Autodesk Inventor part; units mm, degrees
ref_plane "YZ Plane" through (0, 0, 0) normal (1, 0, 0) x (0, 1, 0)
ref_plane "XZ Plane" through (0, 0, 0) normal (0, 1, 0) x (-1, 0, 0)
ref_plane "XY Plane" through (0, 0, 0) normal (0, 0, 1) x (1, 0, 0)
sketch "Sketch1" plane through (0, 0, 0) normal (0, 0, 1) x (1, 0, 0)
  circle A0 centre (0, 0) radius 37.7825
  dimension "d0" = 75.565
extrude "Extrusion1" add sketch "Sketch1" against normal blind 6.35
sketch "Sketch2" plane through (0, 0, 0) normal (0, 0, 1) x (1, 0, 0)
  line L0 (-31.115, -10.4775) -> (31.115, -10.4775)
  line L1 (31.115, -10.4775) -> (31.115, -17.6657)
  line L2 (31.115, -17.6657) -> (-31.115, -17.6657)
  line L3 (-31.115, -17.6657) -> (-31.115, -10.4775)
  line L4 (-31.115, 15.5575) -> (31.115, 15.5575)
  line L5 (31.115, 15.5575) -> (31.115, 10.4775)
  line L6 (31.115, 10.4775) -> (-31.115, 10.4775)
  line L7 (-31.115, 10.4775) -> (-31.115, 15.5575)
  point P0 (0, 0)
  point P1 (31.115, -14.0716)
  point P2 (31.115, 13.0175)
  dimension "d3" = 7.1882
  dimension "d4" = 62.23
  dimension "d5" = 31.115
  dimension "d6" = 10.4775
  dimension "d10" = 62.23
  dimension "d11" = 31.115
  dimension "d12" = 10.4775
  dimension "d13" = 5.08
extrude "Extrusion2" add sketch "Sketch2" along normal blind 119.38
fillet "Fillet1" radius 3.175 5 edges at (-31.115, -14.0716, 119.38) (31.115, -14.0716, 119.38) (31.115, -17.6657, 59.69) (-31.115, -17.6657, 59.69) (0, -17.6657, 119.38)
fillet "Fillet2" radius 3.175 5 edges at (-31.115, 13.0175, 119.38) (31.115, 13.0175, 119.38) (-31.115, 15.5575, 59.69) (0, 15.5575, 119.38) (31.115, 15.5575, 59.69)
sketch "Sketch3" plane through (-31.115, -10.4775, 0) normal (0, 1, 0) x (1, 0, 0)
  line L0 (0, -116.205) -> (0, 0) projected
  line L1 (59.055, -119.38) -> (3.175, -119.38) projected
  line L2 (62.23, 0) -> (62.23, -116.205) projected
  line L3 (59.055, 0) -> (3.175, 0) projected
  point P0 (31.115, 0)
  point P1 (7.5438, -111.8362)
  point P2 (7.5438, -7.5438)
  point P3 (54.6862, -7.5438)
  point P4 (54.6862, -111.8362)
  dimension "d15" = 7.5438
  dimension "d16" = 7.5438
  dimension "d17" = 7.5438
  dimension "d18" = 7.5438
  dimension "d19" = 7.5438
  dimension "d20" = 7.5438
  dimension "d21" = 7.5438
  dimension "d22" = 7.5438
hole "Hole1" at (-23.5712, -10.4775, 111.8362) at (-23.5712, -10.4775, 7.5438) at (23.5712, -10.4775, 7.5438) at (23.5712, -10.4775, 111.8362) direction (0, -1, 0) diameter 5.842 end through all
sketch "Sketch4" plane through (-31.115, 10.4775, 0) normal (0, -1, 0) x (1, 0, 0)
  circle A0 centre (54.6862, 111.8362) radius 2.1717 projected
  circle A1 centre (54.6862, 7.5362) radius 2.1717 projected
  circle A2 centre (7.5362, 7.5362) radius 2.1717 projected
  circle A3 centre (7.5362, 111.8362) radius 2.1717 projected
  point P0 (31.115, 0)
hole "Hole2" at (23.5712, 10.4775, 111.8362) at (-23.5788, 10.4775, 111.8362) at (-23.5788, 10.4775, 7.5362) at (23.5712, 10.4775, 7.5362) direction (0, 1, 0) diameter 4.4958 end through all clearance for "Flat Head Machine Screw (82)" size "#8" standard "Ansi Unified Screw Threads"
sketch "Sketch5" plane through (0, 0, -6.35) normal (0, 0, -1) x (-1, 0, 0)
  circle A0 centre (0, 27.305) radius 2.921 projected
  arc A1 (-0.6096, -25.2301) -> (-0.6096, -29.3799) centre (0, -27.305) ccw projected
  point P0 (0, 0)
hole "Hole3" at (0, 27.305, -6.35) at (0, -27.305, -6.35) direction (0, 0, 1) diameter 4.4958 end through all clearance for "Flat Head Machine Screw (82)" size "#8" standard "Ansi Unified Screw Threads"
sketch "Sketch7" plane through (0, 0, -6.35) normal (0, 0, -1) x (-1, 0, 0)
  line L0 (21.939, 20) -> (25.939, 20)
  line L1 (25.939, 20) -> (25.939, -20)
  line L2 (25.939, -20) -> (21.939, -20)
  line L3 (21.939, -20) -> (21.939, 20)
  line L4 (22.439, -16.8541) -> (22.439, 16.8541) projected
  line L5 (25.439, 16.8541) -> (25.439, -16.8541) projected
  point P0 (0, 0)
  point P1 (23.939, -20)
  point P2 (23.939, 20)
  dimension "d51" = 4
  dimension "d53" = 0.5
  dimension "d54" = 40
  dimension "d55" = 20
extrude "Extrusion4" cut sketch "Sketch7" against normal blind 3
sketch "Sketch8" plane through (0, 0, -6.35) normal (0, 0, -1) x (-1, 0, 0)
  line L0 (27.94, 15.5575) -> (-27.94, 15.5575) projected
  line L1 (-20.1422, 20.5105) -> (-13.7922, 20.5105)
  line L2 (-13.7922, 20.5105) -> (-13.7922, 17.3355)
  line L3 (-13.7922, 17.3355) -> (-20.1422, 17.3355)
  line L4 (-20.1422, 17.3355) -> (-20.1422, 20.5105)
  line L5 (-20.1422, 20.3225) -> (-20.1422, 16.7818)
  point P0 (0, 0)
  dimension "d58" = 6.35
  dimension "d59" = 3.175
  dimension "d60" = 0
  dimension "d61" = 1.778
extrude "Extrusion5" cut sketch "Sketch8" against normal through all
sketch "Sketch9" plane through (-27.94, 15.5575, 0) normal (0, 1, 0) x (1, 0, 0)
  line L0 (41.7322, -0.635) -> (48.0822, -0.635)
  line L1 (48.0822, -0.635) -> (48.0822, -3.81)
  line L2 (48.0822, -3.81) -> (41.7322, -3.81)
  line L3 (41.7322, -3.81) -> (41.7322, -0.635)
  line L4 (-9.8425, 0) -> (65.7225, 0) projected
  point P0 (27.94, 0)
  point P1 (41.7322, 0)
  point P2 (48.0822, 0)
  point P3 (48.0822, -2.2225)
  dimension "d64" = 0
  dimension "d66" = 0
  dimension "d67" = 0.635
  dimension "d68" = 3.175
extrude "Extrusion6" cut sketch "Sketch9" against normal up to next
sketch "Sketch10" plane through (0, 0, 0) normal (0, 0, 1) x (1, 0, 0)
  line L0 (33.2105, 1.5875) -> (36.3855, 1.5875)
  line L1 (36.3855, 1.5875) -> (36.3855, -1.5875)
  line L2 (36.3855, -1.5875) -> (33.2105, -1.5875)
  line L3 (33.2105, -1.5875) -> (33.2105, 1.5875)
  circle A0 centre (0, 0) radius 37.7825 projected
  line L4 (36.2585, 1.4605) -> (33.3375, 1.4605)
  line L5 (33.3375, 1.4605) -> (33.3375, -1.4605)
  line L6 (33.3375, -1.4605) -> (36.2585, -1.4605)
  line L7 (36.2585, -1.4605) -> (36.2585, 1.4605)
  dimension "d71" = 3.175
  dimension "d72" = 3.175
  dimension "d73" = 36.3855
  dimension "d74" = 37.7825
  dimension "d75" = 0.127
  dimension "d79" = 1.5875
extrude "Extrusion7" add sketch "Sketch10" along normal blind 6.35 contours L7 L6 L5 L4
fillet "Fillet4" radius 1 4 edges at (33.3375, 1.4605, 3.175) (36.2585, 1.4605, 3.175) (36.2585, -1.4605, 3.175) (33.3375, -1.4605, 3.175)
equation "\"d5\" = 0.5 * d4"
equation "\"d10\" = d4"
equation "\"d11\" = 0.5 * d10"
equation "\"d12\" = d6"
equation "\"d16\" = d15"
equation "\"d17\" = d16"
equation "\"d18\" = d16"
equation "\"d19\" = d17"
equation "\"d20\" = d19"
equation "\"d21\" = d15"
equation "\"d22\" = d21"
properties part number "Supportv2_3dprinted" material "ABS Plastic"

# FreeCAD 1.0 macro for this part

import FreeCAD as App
import Part
import Sketcher
from FreeCAD import Vector
Q = App.Units.Quantity


def edges_at(feature, points):
    """Names of the edges that pass closest to the given points."""
    edges = feature.Shape.Edges
    near = lambda p: min(range(len(edges)), key=lambda i: edges[i].distToShape(Part.Vertex(*p))[0])
    return sorted({f"Edge{near(p) + 1}" for p in points})


def add_polygon(sketch, points):
    """Adds a closed chain of lines whose ends are joined by coincident constraints."""
    first, n = sketch.GeometryCount, len(points)
    for a, b in zip(points, points[1:] + points[:1]):
        sketch.addGeometry(Part.LineSegment(App.Vector(*a, 0), App.Vector(*b, 0)), False)
    for i in range(n):
        sketch.addConstraint(Sketcher.Constraint("Coincident", first + i, 2, first + (i + 1) % n, 1))

doc = App.newDocument("Part")
params = doc.addObject("Spreadsheet::Sheet", "Params")
for row, (alias, value) in enumerate([
    ("sketch1_diameter", "2.975 in"),
    ("pad1_length", "0.25 in"),
    ("sketch2_height", "0.2 in"),
    ("sketch2_width", "2.45 in"),
    ("sketch2_height2", "0.283 in"),
    ("pad2_length", "4.7 in"),
    ("fillet_radius", "0.125 in"),
    ("fillet2_radius", "0.125 in"),
    ("sketch3_diameter", "0.23 in"),
    ("hole_diameter", "0.23 in"),
    ("sketch4_diameter", "0.177 in"),
    ("hole2_diameter", "0.177 in"),
    ("sketch5_diameter", "0.177 in"),
    ("hole3_diameter", "0.177 in"),
    ("pocket1_length", "0.1181102 in"),
    ("sketch7_width", "0.25 in"),
    ("sketch7_height", "0.125 in"),
    ("sketch8_height", "0.125 in"),
    ("sketch8_width", "0.25 in"),
    ("sketch9_width", "0.115 in"),
    ("pad3_length", "0.25 in"),
    ("fillet3_radius", "1 mm"),
], start=1):
    params.set(f"A{row}", alias)
    params.set(f"B{row}", "=" + value)
    params.setAlias(f"B{row}", alias)

body = doc.addObject("PartDesign::Body", "Body")

# Sketch on XY plane
sketch1 = body.newObject("Sketcher::SketchObject", "Sketch")
sketch1.AttachmentSupport = (doc.getObject("XY_Plane"), [""])
sketch1.MapMode = "FlatFace"
sketch1.addGeometry(Part.Circle(Vector(0, 0, 0), Vector(0, 0, 1), 38), False)
sketch1.addConstraint([
    Sketcher.Constraint("Coincident", 0, 3, -1, 1),
    Sketcher.Constraint("Diameter", 0, Q("2.975 in")),
])
sketch1.setExpression("Constraints[1]", "Params.sketch1_diameter")
pad1 = body.newObject("PartDesign::Pad", "Pad")
pad1.Profile = sketch1
pad1.setExpression("Length", "Params.pad1_length")
pad1.Reversed = True

# Sketch on XY plane
sketch2 = body.newObject("Sketcher::SketchObject", "Sketch001")
sketch2.AttachmentSupport = (doc.getObject("XY_Plane"), [""])
sketch2.MapMode = "FlatFace"
add_polygon(sketch2, [(31, -10), (-31, -10), (-31, -18), (31, -18)])  # lines 0-3
add_polygon(sketch2, [(31, 16), (-31, 16), (-31, 10), (31, 10)])  # lines 4-7
sketch2.addConstraint([
    Sketcher.Constraint("Horizontal", 0),
    Sketcher.Constraint("Vertical", 1),
    Sketcher.Constraint("Horizontal", 2),
    Sketcher.Constraint("Vertical", 3),
    Sketcher.Constraint("Horizontal", 4),
    Sketcher.Constraint("Vertical", 5),
    Sketcher.Constraint("Horizontal", 6),
    Sketcher.Constraint("Vertical", 7),
    Sketcher.Constraint("Symmetric", 3, 2, 5, 2, -1, 1),
    Sketcher.Constraint("Vertical", 1, 2, 4, 2),
    Sketcher.Constraint("Vertical", 3, 2, 6, 2),
    Sketcher.Constraint("DistanceY", 5, 2, 5, 1, Q("0.2 in")),
    Sketcher.Constraint("DistanceX", 0, 2, 0, 1, Q("2.45 in")),
    Sketcher.Constraint("DistanceY", 1, 2, 1, 1, Q("0.283 in")),
    Sketcher.Constraint("DistanceY", 0, 2, -1, 1, Q("0.4125 in")),
])
sketch2.setExpression("Constraints[19]", "Params.sketch2_height")
sketch2.setExpression("Constraints[20]", "Params.sketch2_width")
sketch2.setExpression("Constraints[21]", "Params.sketch2_height2")
pad2 = body.newObject("PartDesign::Pad", "Pad001")
pad2.Profile = sketch2
pad2.setExpression("Length", "Params.pad2_length")
doc.recompute()

fillet = body.newObject("PartDesign::Fillet", "Fillet")
fillet.Base = (pad2, edges_at(pad2, [
    (-31.115, -14.072, 119.38),
    (31.115, -14.072, 119.38),
    (31.115, -17.666, 59.69),
    (-31.115, -17.666, 59.69),
    (0, -17.666, 119.38),
]))
fillet.setExpression("Radius", "Params.fillet_radius")
doc.recompute()

fillet2 = body.newObject("PartDesign::Fillet", "Fillet001")
fillet2.Base = (fillet, edges_at(fillet, [
    (-31.115, 13.018, 119.38),
    (31.115, 13.018, 119.38),
    (-31.115, 15.557, 59.69),
    (0, 15.557, 119.38),
    (31.115, 15.557, 59.69),
]))
fillet2.setExpression("Radius", "Params.fillet2_radius")

# Sketch on XZ plane
sketch3 = body.newObject("Sketcher::SketchObject", "Sketch002")
sketch3.AttachmentSupport = (doc.getObject("XZ_Plane"), [""])
sketch3.MapMode = "FlatFace"
sketch3.AttachmentOffset = App.Placement(Vector(0, 0, 0.4125 * 25.4), App.Rotation())
sketch3.addGeometry([
    Part.Circle(Vector(-23.6, 111.8, 0), Vector(0, 0, 1), 2.9),
    Part.Circle(Vector(-23.6, 7.5, 0), Vector(0, 0, 1), 2.9),
    Part.Circle(Vector(23.6, 7.5, 0), Vector(0, 0, 1), 2.9),
    Part.Circle(Vector(23.6, 111.8, 0), Vector(0, 0, 1), 2.9),
], False)
sketch3.addConstraint([
    Sketcher.Constraint("Equal", 0, 1),
    Sketcher.Constraint("Equal", 1, 2),
    Sketcher.Constraint("Equal", 2, 3),
    Sketcher.Constraint("Symmetric", 1, 3, 2, 3, -2),
    Sketcher.Constraint("Symmetric", 0, 3, 3, 3, -2),
    Sketcher.Constraint("Vertical", 0, 3, 1, 3),
    Sketcher.Constraint("Diameter", 0, Q("0.23 in")),
    Sketcher.Constraint("DistanceX", 0, 3, -1, 1, Q("0.928 in")),
    Sketcher.Constraint("DistanceY", -1, 1, 0, 3, Q("4.403 in")),
    Sketcher.Constraint("DistanceY", -1, 1, 1, 3, Q("0.297 in")),
])
sketch3.setExpression("Constraints[6]", "Params.sketch3_diameter")
doc.recompute()
hole = body.newObject("PartDesign::Hole", "Hole")
hole.Profile = sketch3
hole.ThreadType = "None"
hole.setExpression("Diameter", "Params.hole_diameter")
hole.DepthType = "ThroughAll"
hole.Reversed = True

# Sketch on XZ plane
sketch4 = body.newObject("Sketcher::SketchObject", "Sketch003")
sketch4.AttachmentSupport = (doc.getObject("XZ_Plane"), [""])
sketch4.MapMode = "FlatFace"
sketch4.AttachmentOffset = App.Placement(Vector(0, 0, -0.4125 * 25.4), App.Rotation())
sketch4.addGeometry([
    Part.Circle(Vector(23.6, 111.8, 0), Vector(0, 0, 1), 2.2),
    Part.Circle(Vector(-23.6, 111.8, 0), Vector(0, 0, 1), 2.2),
    Part.Circle(Vector(-23.6, 7.5, 0), Vector(0, 0, 1), 2.2),
    Part.Circle(Vector(23.6, 7.5, 0), Vector(0, 0, 1), 2.2),
], False)
sketch4.addConstraint([
    Sketcher.Constraint("Equal", 0, 1),
    Sketcher.Constraint("Equal", 1, 2),
    Sketcher.Constraint("Equal", 2, 3),
    Sketcher.Constraint("Horizontal", 0, 3, 1, 3),
    Sketcher.Constraint("Horizontal", 2, 3, 3, 3),
    Sketcher.Constraint("Vertical", 1, 3, 2, 3),
    Sketcher.Constraint("Vertical", 0, 3, 3, 3),
    Sketcher.Constraint("Diameter", 0, Q("0.177 in")),
    Sketcher.Constraint("DistanceX", -1, 1, 0, 3, Q("0.928 in")),
    Sketcher.Constraint("DistanceY", -1, 1, 0, 3, Q("4.403 in")),
    Sketcher.Constraint("DistanceX", 1, 3, -1, 1, Q("0.9283 in")),
    Sketcher.Constraint("DistanceY", -1, 1, 2, 3, Q("0.2967 in")),
])
sketch4.setExpression("Constraints[7]", "Params.sketch4_diameter")
doc.recompute()
hole2 = body.newObject("PartDesign::Hole", "Hole001")
hole2.Profile = sketch4
hole2.ThreadType = "None"
hole2.setExpression("Diameter", "Params.hole2_diameter")
hole2.DepthType = "ThroughAll"

# Sketch on XY plane
sketch5 = body.newObject("Sketcher::SketchObject", "Sketch004")
sketch5.AttachmentSupport = (doc.getObject("XY_Plane"), [""])
sketch5.MapMode = "FlatFace"
sketch5.AttachmentOffset = App.Placement(Vector(0, 0, -0.25 * 25.4), App.Rotation())
sketch5.addGeometry([
    Part.Circle(Vector(0, 27.3, 0), Vector(0, 0, 1), 2.2),
    Part.Circle(Vector(0, -27.3, 0), Vector(0, 0, 1), 2.2),
], False)
sketch5.addConstraint([
    Sketcher.Constraint("Equal", 0, 1),
    Sketcher.Constraint("Symmetric", 0, 3, 1, 3, -1, 1),
    Sketcher.Constraint("PointOnObject", 0, 3, -2),
    Sketcher.Constraint("Diameter", 0, Q("0.177 in")),
    Sketcher.Constraint("DistanceY", 1, 3, 0, 3, Q("2.15 in")),
])
sketch5.setExpression("Constraints[3]", "Params.sketch5_diameter")
doc.recompute()
hole3 = body.newObject("PartDesign::Hole", "Hole002")
hole3.Profile = sketch5
hole3.ThreadType = "None"
hole3.setExpression("Diameter", "Params.hole3_diameter")
hole3.DepthType = "ThroughAll"
hole3.Reversed = True

# Sketch on XY plane
sketch6 = body.newObject("Sketcher::SketchObject", "Sketch005")
sketch6.AttachmentSupport = (doc.getObject("XY_Plane"), [""])
sketch6.MapMode = "FlatFace"
sketch6.AttachmentOffset = App.Placement(Vector(0, 0, -0.25 * 25.4), App.Rotation())
add_polygon(sketch6, [(-25.9, 20), (-21.9, 20), (-21.9, -20), (-25.9, -20)])  # lines 0-3
sketch6.addConstraint([
    Sketcher.Constraint("Horizontal", 0),
    Sketcher.Constraint("Vertical", 1),
    Sketcher.Constraint("Horizontal", 2),
    Sketcher.Constraint("Vertical", 3),
    Sketcher.Constraint("DistanceY", 1, 2, 1, 1, Q("1.5748 in")),
    Sketcher.Constraint("DistanceX", 0, 1, 0, 2, 4.0),
    Sketcher.Constraint("DistanceY", -1, 1, 0, 2, Q("0.7874 in")),
    Sketcher.Constraint("DistanceX", 0, 2, -1, 1, 21.939),
])
pocket1 = body.newObject("PartDesign::Pocket", "Pocket")
pocket1.Profile = sketch6
pocket1.setExpression("Length", "Params.pocket1_length")
pocket1.Reversed = True

# Sketch on XY plane
sketch7 = body.newObject("Sketcher::SketchObject", "Sketch006")
sketch7.AttachmentSupport = (doc.getObject("XY_Plane"), [""])
sketch7.MapMode = "FlatFace"
sketch7.AttachmentOffset = App.Placement(Vector(0, 0, -0.25 * 25.4), App.Rotation())
add_polygon(sketch7, [(13.8, 20.5), (20.1, 20.5), (20.1, 17.3), (13.8, 17.3)])  # lines 0-3
sketch7.addConstraint([
    Sketcher.Constraint("Horizontal", 0),
    Sketcher.Constraint("Vertical", 1),
    Sketcher.Constraint("Horizontal", 2),
    Sketcher.Constraint("Vertical", 3),
    Sketcher.Constraint("DistanceX", 0, 1, 0, 2, Q("0.25 in")),
    Sketcher.Constraint("DistanceY", 1, 2, 1, 1, Q("0.125 in")),
    Sketcher.Constraint("DistanceX", -1, 1, 0, 2, Q("0.793 in")),
    Sketcher.Constraint("DistanceY", -1, 1, 0, 2, Q("0.8075 in")),
])
sketch7.setExpression("Constraints[8]", "Params.sketch7_width")
sketch7.setExpression("Constraints[9]", "Params.sketch7_height")
pocket2 = body.newObject("PartDesign::Pocket", "Pocket001")
pocket2.Profile = sketch7
pocket2.Type = "ThroughAll"
pocket2.Reversed = True

# Sketch on XZ plane
sketch8 = body.newObject("Sketcher::SketchObject", "Sketch007")
sketch8.AttachmentSupport = (doc.getObject("XZ_Plane"), [""])
sketch8.MapMode = "FlatFace"
sketch8.AttachmentOffset = App.Placement(Vector(0, 0, -0.6125 * 25.4), App.Rotation())
add_polygon(sketch8, [(20.1, 0.6), (13.8, 0.6), (13.8, 3.8), (20.1, 3.8)])  # lines 0-3
sketch8.addConstraint([
    Sketcher.Constraint("Horizontal", 0),
    Sketcher.Constraint("Vertical", 1),
    Sketcher.Constraint("Horizontal", 2),
    Sketcher.Constraint("Vertical", 3),
    Sketcher.Constraint("DistanceY", 1, 1, 1, 2, Q("0.125 in")),
    Sketcher.Constraint("DistanceY", -1, 1, 0, 2, Q("0.025 in")),
    Sketcher.Constraint("DistanceX", 0, 2, 0, 1, Q("0.25 in")),
    Sketcher.Constraint("DistanceX", -1, 1, 0, 2, Q("0.543 in")),
])
sketch8.setExpression("Constraints[8]", "Params.sketch8_height")
sketch8.setExpression("Constraints[10]", "Params.sketch8_width")
pocket3 = body.newObject("PartDesign::Pocket", "Pocket002")
pocket3.Profile = sketch8
pocket3.Type = "UpToFirst"
pocket3.Reversed = True

# Sketch on XY plane
sketch9 = body.newObject("Sketcher::SketchObject", "Sketch008")
sketch9.AttachmentSupport = (doc.getObject("XY_Plane"), [""])
sketch9.MapMode = "FlatFace"
add_polygon(sketch9, [(36.3, -1.5), (36.3, 1.5), (33.3, 1.5), (33.3, -1.5)])  # lines 0-3
sketch9.addConstraint([
    Sketcher.Constraint("Vertical", 0),
    Sketcher.Constraint("Horizontal", 1),
    Sketcher.Constraint("Vertical", 2),
    Sketcher.Constraint("Horizontal", 3),
    Sketcher.Constraint("Equal", 3, 0),
    Sketcher.Constraint("DistanceX", 1, 2, 1, 1, Q("0.115 in")),
    Sketcher.Constraint("DistanceX", -1, 1, 1, 2, Q("1.3125 in")),
    Sketcher.Constraint("DistanceY", -1, 1, 0, 2, Q("0.0575 in")),
])
sketch9.setExpression("Constraints[9]", "Params.sketch9_width")
pad3 = body.newObject("PartDesign::Pad", "Pad002")
pad3.Profile = sketch9
pad3.setExpression("Length", "Params.pad3_length")
doc.recompute()

fillet3 = body.newObject("PartDesign::Fillet", "Fillet002")
fillet3.Base = (pad3, edges_at(pad3, [
    (33.337, 1.46, 3.175),
    (36.258, 1.46, 3.175),
    (36.258, -1.46, 3.175),
    (33.337, -1.46, 3.175),
]))
fillet3.setExpression("Radius", "Params.fillet3_radius")

doc.recompute()
